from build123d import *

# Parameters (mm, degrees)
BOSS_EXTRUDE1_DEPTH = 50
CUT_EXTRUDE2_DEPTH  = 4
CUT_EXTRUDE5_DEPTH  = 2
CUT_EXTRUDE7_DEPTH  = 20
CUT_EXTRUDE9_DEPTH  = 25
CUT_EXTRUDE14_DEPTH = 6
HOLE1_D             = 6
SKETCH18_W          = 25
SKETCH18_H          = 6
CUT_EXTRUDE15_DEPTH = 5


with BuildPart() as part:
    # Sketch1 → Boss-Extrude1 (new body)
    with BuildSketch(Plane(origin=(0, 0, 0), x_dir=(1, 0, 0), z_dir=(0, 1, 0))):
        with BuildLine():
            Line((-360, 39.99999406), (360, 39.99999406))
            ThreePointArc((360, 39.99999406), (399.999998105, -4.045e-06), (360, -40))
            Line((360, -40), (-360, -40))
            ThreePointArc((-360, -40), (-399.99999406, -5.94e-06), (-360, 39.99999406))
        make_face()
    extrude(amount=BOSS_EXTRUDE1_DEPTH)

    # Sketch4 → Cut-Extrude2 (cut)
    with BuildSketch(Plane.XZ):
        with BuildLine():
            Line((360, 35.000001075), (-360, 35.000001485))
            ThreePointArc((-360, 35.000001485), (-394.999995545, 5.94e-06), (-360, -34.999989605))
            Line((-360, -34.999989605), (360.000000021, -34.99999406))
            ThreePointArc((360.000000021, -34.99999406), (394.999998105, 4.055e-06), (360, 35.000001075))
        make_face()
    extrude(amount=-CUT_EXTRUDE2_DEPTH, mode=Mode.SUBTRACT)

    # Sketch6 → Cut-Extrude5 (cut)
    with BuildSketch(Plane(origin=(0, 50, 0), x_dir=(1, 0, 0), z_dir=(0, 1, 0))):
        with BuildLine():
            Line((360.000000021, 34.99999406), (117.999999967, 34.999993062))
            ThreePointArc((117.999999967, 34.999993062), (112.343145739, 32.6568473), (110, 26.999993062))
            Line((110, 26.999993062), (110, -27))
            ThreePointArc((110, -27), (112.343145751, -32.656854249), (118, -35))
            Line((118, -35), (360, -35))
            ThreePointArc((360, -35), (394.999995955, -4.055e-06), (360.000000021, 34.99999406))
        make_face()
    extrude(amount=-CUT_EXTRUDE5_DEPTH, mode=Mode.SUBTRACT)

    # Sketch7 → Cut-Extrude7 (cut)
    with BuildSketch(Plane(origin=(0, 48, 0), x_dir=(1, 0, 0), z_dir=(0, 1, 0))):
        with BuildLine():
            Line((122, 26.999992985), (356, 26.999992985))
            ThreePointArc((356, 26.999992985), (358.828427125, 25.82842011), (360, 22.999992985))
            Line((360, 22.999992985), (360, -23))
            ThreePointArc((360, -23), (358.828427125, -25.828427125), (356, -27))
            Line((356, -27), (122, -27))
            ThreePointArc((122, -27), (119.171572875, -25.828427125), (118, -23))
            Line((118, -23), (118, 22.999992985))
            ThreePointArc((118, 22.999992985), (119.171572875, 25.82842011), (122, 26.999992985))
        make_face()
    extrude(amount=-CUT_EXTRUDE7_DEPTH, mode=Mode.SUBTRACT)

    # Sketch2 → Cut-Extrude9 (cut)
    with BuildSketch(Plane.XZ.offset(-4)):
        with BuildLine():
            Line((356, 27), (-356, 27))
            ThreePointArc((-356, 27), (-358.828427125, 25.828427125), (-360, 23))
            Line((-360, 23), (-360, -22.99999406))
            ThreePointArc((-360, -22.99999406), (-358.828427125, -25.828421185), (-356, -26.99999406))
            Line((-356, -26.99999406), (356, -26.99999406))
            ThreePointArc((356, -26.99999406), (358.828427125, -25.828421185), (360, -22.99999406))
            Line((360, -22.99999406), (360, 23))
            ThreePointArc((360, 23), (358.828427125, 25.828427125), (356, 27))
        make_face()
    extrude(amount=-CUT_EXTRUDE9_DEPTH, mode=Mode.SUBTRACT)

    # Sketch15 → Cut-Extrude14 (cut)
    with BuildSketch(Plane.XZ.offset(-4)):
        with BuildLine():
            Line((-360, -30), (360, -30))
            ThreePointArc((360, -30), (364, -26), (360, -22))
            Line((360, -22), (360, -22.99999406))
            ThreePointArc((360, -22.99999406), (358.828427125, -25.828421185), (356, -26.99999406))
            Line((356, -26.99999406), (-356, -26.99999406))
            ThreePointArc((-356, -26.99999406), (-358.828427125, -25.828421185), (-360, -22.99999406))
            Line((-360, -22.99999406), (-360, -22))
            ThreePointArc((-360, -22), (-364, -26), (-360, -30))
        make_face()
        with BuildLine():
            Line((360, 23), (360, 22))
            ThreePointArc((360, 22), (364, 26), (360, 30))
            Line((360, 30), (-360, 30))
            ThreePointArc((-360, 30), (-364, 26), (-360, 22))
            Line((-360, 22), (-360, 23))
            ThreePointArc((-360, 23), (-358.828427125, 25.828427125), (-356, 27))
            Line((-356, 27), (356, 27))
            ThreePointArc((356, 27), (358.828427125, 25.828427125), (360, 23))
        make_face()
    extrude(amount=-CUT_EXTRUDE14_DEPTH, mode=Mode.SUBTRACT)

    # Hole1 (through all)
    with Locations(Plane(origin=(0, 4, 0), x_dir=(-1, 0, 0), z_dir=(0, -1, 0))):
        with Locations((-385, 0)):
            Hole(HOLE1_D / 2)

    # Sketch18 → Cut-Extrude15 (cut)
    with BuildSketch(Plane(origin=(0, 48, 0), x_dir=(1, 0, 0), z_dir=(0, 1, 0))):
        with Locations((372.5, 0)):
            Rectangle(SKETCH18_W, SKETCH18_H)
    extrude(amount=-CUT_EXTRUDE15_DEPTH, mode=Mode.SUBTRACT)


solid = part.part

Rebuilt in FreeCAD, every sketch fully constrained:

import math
import FreeCAD as App
import Part
import Sketcher

V = App.Vector
Q = App.Units.Quantity


def add_polygon(sketch, points):
    """Adds a closed chain of lines whose ends are joined by coincident constraints."""
    first, n = sketch.GeometryCount, len(points)
    for a, b in zip(points, points[1:] + points[:1]):
        sketch.addGeometry(Part.LineSegment(App.Vector(*a, 0), App.Vector(*b, 0)), False)
    for i in range(n):
        sketch.addConstraint(Sketcher.Constraint("Coincident", first + i, 2, first + (i + 1) % n, 1))

doc = App.newDocument("Part")
body = doc.addObject("PartDesign::Body", "Body")

# Sketch on XZ plane
sketch1 = doc.addObject("Sketcher::SketchObject", "Sketch")
body.addObject(sketch1)
sketch1.AttachmentSupport = (doc.XZ_Plane, [""])
sketch1.MapMode = "FlatFace"
sketch1.addGeometry([
    Part.LineSegment(V(360, -39.999994, 0), V(-360, -39.999994, 0)),
    Part.ArcOfCircle(Part.Circle(V(-359.999997, 0.000003, 0), V(0, 0, 1), 39.999997), math.radians(90.000004), math.radians(269.999996)),
    Part.LineSegment(V(-360, 40, 0), V(360, 40, 0)),
    Part.ArcOfCircle(Part.Circle(V(360.000001, 0.000003, 0), V(0, 0, 1), 39.999997), math.radians(-90.000002), math.radians(90.000002)),
], False)
sketch1.addConstraint([
    Sketcher.Constraint("Tangent", 0, 2, 1, 2),
    Sketcher.Constraint("Tangent", 1, 1, 2, 1),
    Sketcher.Constraint("Tangent", 2, 2, 3, 2),
    Sketcher.Constraint("Tangent", 3, 1, 0, 1),
    Sketcher.Constraint("Horizontal", 0),
    Sketcher.Constraint("Horizontal", 2),
    Sketcher.Constraint("Symmetric", 1, 3, 3, 3, -1, 1),
    Sketcher.Constraint("DistanceX", 0, 2, 0, 1, Q("720 mm")),
    Sketcher.Constraint("DistanceY", -1, 1, 1, 1, Q("40 mm")),
])
pad1 = doc.addObject("PartDesign::Pad", "Pad")
body.addObject(pad1)
pad1.Profile = sketch1
pad1.Length = 50
pad1.Reversed = True

# Sketch on XZ plane
sketch2 = doc.addObject("Sketcher::SketchObject", "Sketch001")
body.addObject(sketch2)
sketch2.AttachmentSupport = (doc.XZ_Plane, [""])
sketch2.MapMode = "FlatFace"
sketch2.addGeometry([
    Part.LineSegment(V(360, 35.000001, 0), V(-360, 35.000001, 0)),
    Part.ArcOfCircle(Part.Circle(V(-360, 0.000006, 0), V(0, 0, 1), 34.999996), math.radians(90), math.radians(270)),
    Part.LineSegment(V(-360, -34.99999, 0), V(360, -34.999994, 0)),
    Part.ArcOfCircle(Part.Circle(V(360.000001, 0.000004, 0), V(0, 0, 1), 34.999998), math.radians(-90.000001), math.radians(90.000001)),
], False)
sketch2.addConstraint([
    Sketcher.Constraint("Tangent", 0, 2, 1, 1),
    Sketcher.Constraint("Tangent", 1, 2, 2, 1),
    Sketcher.Constraint("Tangent", 2, 2, 3, 1),
    Sketcher.Constraint("Tangent", 3, 2, 0, 1),
    Sketcher.Constraint("Horizontal", 0),
    Sketcher.Constraint("Symmetric", 1, 3, 3, 3, -1, 1),
    Sketcher.Constraint("Vertical", 3, 3, 2, 2),
    Sketcher.Constraint("DistanceX", 0, 2, 0, 1, Q("720 mm")),
    Sketcher.Constraint("DistanceY", -1, 1, 0, 2, Q("35.000001 mm")),
])
pocket1 = doc.addObject("PartDesign::Pocket", "Pocket")
body.addObject(pocket1)
pocket1.Profile = sketch2
pocket1.Length = 4

# Sketch on XZ plane
sketch3 = doc.addObject("Sketcher::SketchObject", "Sketch002")
body.addObject(sketch3)
sketch3.AttachmentSupport = (doc.XZ_Plane, [""])
sketch3.MapMode = "FlatFace"
sketch3.AttachmentOffset = App.Placement(V(0, 0, -50), App.Rotation())
sketch3.addGeometry([
    Part.LineSegment(V(360, -34.999994, 0), V(118, -34.999993, 0)),  # 0
    Part.ArcOfCircle(Part.Circle(V(118, -26.999993, 0), V(0, 0, 1), 8), math.radians(180), math.radians(270)),  # 1
    Part.LineSegment(V(110, -26.999993, 0), V(110, 27, 0)),  # 2
    Part.ArcOfCircle(Part.Circle(V(118, 27, 0), V(0, 0, 1), 8), math.radians(90), math.radians(180)),  # 3
    Part.LineSegment(V(118, 35, 0), V(360, 35, 0)),  # 4
    Part.ArcOfCircle(Part.Circle(V(359.999999, 0.000003, 0), V(0, 0, 1), 34.999997), math.radians(-89.999998), math.radians(89.999998)),  # 5
], False)
sketch3.addConstraint([
    Sketcher.Constraint("Tangent", 0, 2, 1, 2),
    Sketcher.Constraint("Tangent", 1, 1, 2, 1),
    Sketcher.Constraint("Tangent", 2, 2, 3, 2),
    Sketcher.Constraint("Tangent", 3, 1, 4, 1),
    Sketcher.Constraint("Tangent", 4, 2, 5, 2),
    Sketcher.Constraint("Tangent", 5, 1, 0, 1),
    Sketcher.Constraint("Horizontal", 0),
    Sketcher.Constraint("Vertical", 2),
    Sketcher.Constraint("Horizontal", 4),
    Sketcher.Constraint("Equal", 1, 3),
    Sketcher.Constraint("Radius", 1, Q("8 mm")),
    Sketcher.Constraint("DistanceX", 0, 2, 0, 1, Q("242 mm")),
    Sketcher.Constraint("DistanceX", -1, 1, 1, 3, Q("118 mm")),
    Sketcher.Constraint("DistanceY", -1, 1, 3, 3, Q("27 mm")),
    Sketcher.Constraint("Radius", 5, Q("34.999997 mm")),
])
pocket2 = doc.addObject("PartDesign::Pocket", "Pocket001")
body.addObject(pocket2)
pocket2.Profile = sketch3
pocket2.Length = 2
pocket2.Reversed = True

# Sketch on XZ plane
sketch4 = doc.addObject("Sketcher::SketchObject", "Sketch003")
body.addObject(sketch4)
sketch4.AttachmentSupport = (doc.XZ_Plane, [""])
sketch4.MapMode = "FlatFace"
sketch4.AttachmentOffset = App.Placement(V(0, 0, -48), App.Rotation())
sketch4.addGeometry([
    Part.LineSegment(V(356, -26.999993, 0), V(122, -26.999993, 0)),  # 0
    Part.ArcOfCircle(Part.Circle(V(122, -22.999993, 0), V(0, 0, 1), 4), math.radians(180), math.radians(270)),  # 1
    Part.LineSegment(V(118, -22.999993, 0), V(118, 23, 0)),  # 2
    Part.ArcOfCircle(Part.Circle(V(122, 23, 0), V(0, 0, 1), 4), math.radians(90), math.radians(180)),  # 3
    Part.LineSegment(V(122, 27, 0), V(356, 27, 0)),  # 4
    Part.ArcOfCircle(Part.Circle(V(356, 23, 0), V(0, 0, 1), 4), math.radians(0), math.radians(90)),  # 5
    Part.LineSegment(V(360, 23, 0), V(360, -22.999993, 0)),  # 6
    Part.ArcOfCircle(Part.Circle(V(356, -22.999993, 0), V(0, 0, 1), 4), math.radians(-90), math.radians(0)),  # 7
], False)
sketch4.addConstraint([
    Sketcher.Constraint("Tangent", 0, 2, 1, 2),
    Sketcher.Constraint("Tangent", 1, 1, 2, 1),
    Sketcher.Constraint("Tangent", 2, 2, 3, 2),
    Sketcher.Constraint("Tangent", 3, 1, 4, 1),
    Sketcher.Constraint("Tangent", 4, 2, 5, 2),
    Sketcher.Constraint("Tangent", 5, 1, 6, 1),
    Sketcher.Constraint("Tangent", 6, 2, 7, 2),
    Sketcher.Constraint("Tangent", 7, 1, 0, 1),
    Sketcher.Constraint("Horizontal", 0),
    Sketcher.Constraint("Vertical", 2),
    Sketcher.Constraint("Horizontal", 4),
    Sketcher.Constraint("Vertical", 6),
    Sketcher.Constraint("Equal", 1, 3),
    Sketcher.Constraint("Equal", 3, 5),
    Sketcher.Constraint("Equal", 5, 7),
    Sketcher.Constraint("Radius", 1, Q("4 mm")),
    Sketcher.Constraint("DistanceX", 0, 2, 0, 1, Q("234 mm")),
    Sketcher.Constraint("DistanceX", -1, 1, 1, 3, Q("122 mm")),
    Sketcher.Constraint("DistanceY", -1, 1, 3, 3, Q("23 mm")),
    Sketcher.Constraint("DistanceY", 2, 1, 2, 2, Q("45.999993 mm")),
])
pocket3 = doc.addObject("PartDesign::Pocket", "Pocket002")
body.addObject(pocket3)
pocket3.Profile = sketch4
pocket3.Length = 20
pocket3.Reversed = True

# Sketch on XZ plane
sketch5 = doc.addObject("Sketcher::SketchObject", "Sketch004")
body.addObject(sketch5)
sketch5.AttachmentSupport = (doc.XZ_Plane, [""])
sketch5.MapMode = "FlatFace"
sketch5.AttachmentOffset = App.Placement(V(0, 0, -4), App.Rotation())
sketch5.addGeometry([
    Part.LineSegment(V(356, 27, 0), V(-356, 27, 0)),  # 0
    Part.ArcOfCircle(Part.Circle(V(-356, 23, 0), V(0, 0, 1), 4), math.radians(90), math.radians(180)),  # 1
    Part.LineSegment(V(-360, 23, 0), V(-360, -22.999994, 0)),  # 2
    Part.ArcOfCircle(Part.Circle(V(-356, -22.999994, 0), V(0, 0, 1), 4), math.radians(180), math.radians(270)),  # 3
    Part.LineSegment(V(-356, -26.999994, 0), V(356, -26.999994, 0)),  # 4
    Part.ArcOfCircle(Part.Circle(V(356, -22.999994, 0), V(0, 0, 1), 4), math.radians(-90), math.radians(0)),  # 5
    Part.LineSegment(V(360, -22.999994, 0), V(360, 23, 0)),  # 6
    Part.ArcOfCircle(Part.Circle(V(356, 23, 0), V(0, 0, 1), 4), math.radians(0), math.radians(90)),  # 7
], False)
sketch5.addConstraint([
    Sketcher.Constraint("Tangent", 0, 2, 1, 1),
    Sketcher.Constraint("Tangent", 1, 2, 2, 1),
    Sketcher.Constraint("Tangent", 2, 2, 3, 1),
    Sketcher.Constraint("Tangent", 3, 2, 4, 1),
    Sketcher.Constraint("Tangent", 4, 2, 5, 1),
    Sketcher.Constraint("Tangent", 5, 2, 6, 1),
    Sketcher.Constraint("Tangent", 6, 2, 7, 1),
    Sketcher.Constraint("Tangent", 7, 2, 0, 1),
    Sketcher.Constraint("Horizontal", 0),
    Sketcher.Constraint("Vertical", 2),
    Sketcher.Constraint("Horizontal", 4),
    Sketcher.Constraint("Vertical", 6),
    Sketcher.Constraint("Equal", 1, 3),
    Sketcher.Constraint("Equal", 3, 5),
    Sketcher.Constraint("Equal", 5, 7),
    Sketcher.Constraint("Symmetric", 1, 3, 5, 3, -1, 1),
    Sketcher.Constraint("Radius", 1, Q("4 mm")),
    Sketcher.Constraint("DistanceX", 0, 2, 0, 1, Q("712 mm")),
    Sketcher.Constraint("DistanceY", -1, 1, 1, 3, Q("23 mm")),
])
pocket4 = doc.addObject("PartDesign::Pocket", "Pocket003")
body.addObject(pocket4)
pocket4.Profile = sketch5
pocket4.Length = 25

# Sketch on XZ plane
sketch6 = doc.addObject("Sketcher::SketchObject", "Sketch005")
body.addObject(sketch6)
sketch6.AttachmentSupport = (doc.XZ_Plane, [""])
sketch6.MapMode = "FlatFace"
sketch6.AttachmentOffset = App.Placement(V(0, 0, -4), App.Rotation())
sketch6.addGeometry([
    Part.LineSegment(V(-360, -30, 0), V(360, -30, 0)),  # 0
    Part.ArcOfCircle(Part.Circle(V(360, -26, 0), V(0, 0, 1), 4), math.radians(-90), math.radians(90)),  # 1
    Part.LineSegment(V(360, -22, 0), V(360, -22.999994, 0)),  # 2
    Part.ArcOfCircle(Part.Circle(V(356, -22.999994, 0), V(0, 0, 1), 4), math.radians(-90), math.radians(0)),  # 3
    Part.LineSegment(V(356, -26.999994, 0), V(-356, -26.999994, 0)),  # 4
    Part.ArcOfCircle(Part.Circle(V(-356, -22.999994, 0), V(0, 0, 1), 4), math.radians(180), math.radians(270)),  # 5
    Part.LineSegment(V(-360, -22.999994, 0), V(-360, -22, 0)),  # 6
    Part.ArcOfCircle(Part.Circle(V(-360, -26, 0), V(0, 0, 1), 4), math.radians(90), math.radians(270)),  # 7
    Part.LineSegment(V(360, 23, 0), V(360, 22, 0)),  # 8
    Part.ArcOfCircle(Part.Circle(V(360, 26, 0), V(0, 0, 1), 4), math.radians(-90), math.radians(90)),  # 9
    Part.LineSegment(V(360, 30, 0), V(-360, 30, 0)),  # 10
    Part.ArcOfCircle(Part.Circle(V(-360, 26, 0), V(0, 0, 1), 4), math.radians(90), math.radians(270)),  # 11
    Part.LineSegment(V(-360, 22, 0), V(-360, 23, 0)),  # 12
    Part.ArcOfCircle(Part.Circle(V(-356, 23, 0), V(0, 0, 1), 4), math.radians(90), math.radians(180)),  # 13
    Part.LineSegment(V(-356, 27, 0), V(356, 27, 0)),  # 14
    Part.ArcOfCircle(Part.Circle(V(356, 23, 0), V(0, 0, 1), 4), math.radians(0), math.radians(90)),  # 15
], False)
sketch6.addConstraint([
    Sketcher.Constraint("Tangent", 0, 2, 1, 1),
    Sketcher.Constraint("Coincident", 1, 2, 2, 1),
    Sketcher.Constraint("Tangent", 2, 2, 3, 2),
    Sketcher.Constraint("Tangent", 3, 1, 4, 1),
    Sketcher.Constraint("Tangent", 4, 2, 5, 2),
    Sketcher.Constraint("Tangent", 5, 1, 6, 1),
    Sketcher.Constraint("Coincident", 6, 2, 7, 1),
    Sketcher.Constraint("Tangent", 7, 2, 0, 1),
    Sketcher.Constraint("Coincident", 8, 2, 9, 1),
    Sketcher.Constraint("Tangent", 9, 2, 10, 1),
    Sketcher.Constraint("Tangent", 10, 2, 11, 1),
    Sketcher.Constraint("Coincident", 11, 2, 12, 1),
    Sketcher.Constraint("Tangent", 12, 2, 13, 2),
    Sketcher.Constraint("Tangent", 13, 1, 14, 1),
    Sketcher.Constraint("Tangent", 14, 2, 15, 2),
    Sketcher.Constraint("Tangent", 15, 1, 8, 1),
    Sketcher.Constraint("Horizontal", 0),
    Sketcher.Constraint("Vertical", 2),
    Sketcher.Constraint("Horizontal", 4),
    Sketcher.Constraint("Vertical", 6),
    Sketcher.Constraint("Vertical", 8),
    Sketcher.Constraint("Horizontal", 10),
    Sketcher.Constraint("Vertical", 12),
    Sketcher.Constraint("Horizontal", 14),
    Sketcher.Constraint("Equal", 1, 3),
    Sketcher.Constraint("Equal", 3, 5),
    Sketcher.Constraint("Equal", 5, 7),
    Sketcher.Constraint("Equal", 7, 9),
    Sketcher.Constraint("Equal", 9, 11),
    Sketcher.Constraint("Equal", 11, 13),
    Sketcher.Constraint("Equal", 13, 15),
    Sketcher.Constraint("Symmetric", 7, 3, 9, 3, -1, 1),
    Sketcher.Constraint("Symmetric", 3, 3, 13, 3, -1, 1),
    Sketcher.Constraint("Vertical", 1, 3, 9, 3),
    Sketcher.Constraint("Vertical", 7, 3, 11, 3),
    Sketcher.Constraint("Vertical", 5, 3, 13, 3),
    Sketcher.Constraint("Vertical", 3, 3, 15, 3),
    Sketcher.Constraint("Vertical", 0, 2, 1, 2),
    Sketcher.Constraint("Radius", 1, Q("4 mm")),
    Sketcher.Constraint("DistanceX", 0, 1, 0, 2, Q("720 mm")),
    Sketcher.Constraint("DistanceY", 8, 2, 8, 1, Q("1 mm")),
    Sketcher.Constraint("DistanceY", 1, 3, -1, 1, Q("26 mm")),
])
pocket5 = doc.addObject("PartDesign::Pocket", "Pocket004")
body.addObject(pocket5)
pocket5.Profile = sketch6
pocket5.Length = 6

# Sketch on XZ plane
sketch7 = doc.addObject("Sketcher::SketchObject", "Sketch006")
body.addObject(sketch7)
sketch7.AttachmentSupport = (doc.XZ_Plane, [""])
sketch7.MapMode = "FlatFace"
sketch7.AttachmentOffset = App.Placement(V(0, 0, -4), App.Rotation())
sketch7.addGeometry(Part.Circle(V(385, 0, 0), V(0, 0, 1), 3), False)
sketch7.addConstraint([
    Sketcher.Constraint("PointOnObject", 0, 3, -1),
    Sketcher.Constraint("Diameter", 0, Q("6 mm")),
    Sketcher.Constraint("DistanceX", -1, 1, 0, 3, Q("385 mm")),
])
doc.recompute()
hole = doc.addObject("PartDesign::Hole", "Hole")
body.addObject(hole)
hole.Profile = sketch7
hole.ThreadType = "None"
hole.Diameter = 6
hole.DepthType = "ThroughAll"

# Sketch on XZ plane
sketch8 = doc.addObject("Sketcher::SketchObject", "Sketch007")
body.addObject(sketch8)
sketch8.AttachmentSupport = (doc.XZ_Plane, [""])
sketch8.MapMode = "FlatFace"
sketch8.AttachmentOffset = App.Placement(V(0, 0, -48), App.Rotation())
add_polygon(sketch8, [(360, -3), (360, 3), (385, 3), (385, -3)])  # lines 0-3
sketch8.addConstraint([
    Sketcher.Constraint("Vertical", 0),
    Sketcher.Constraint("Horizontal", 1),
    Sketcher.Constraint("Vertical", 2),
    Sketcher.Constraint("Horizontal", 3),
    Sketcher.Constraint("DistanceX", 1, 1, 1, 2, Q("25 mm")),
    Sketcher.Constraint("DistanceY", 0, 1, 0, 2, Q("6 mm")),
    Sketcher.Constraint("DistanceX", -1, 1, 0, 2, Q("360 mm")),
    Sketcher.Constraint("DistanceY", -1, 1, 0, 2, Q("3 mm")),
])
pocket6 = doc.addObject("PartDesign::Pocket", "Pocket005")
body.addObject(pocket6)
pocket6.Profile = sketch8
pocket6.Length = 5
pocket6.Reversed = True

doc.recompute()
